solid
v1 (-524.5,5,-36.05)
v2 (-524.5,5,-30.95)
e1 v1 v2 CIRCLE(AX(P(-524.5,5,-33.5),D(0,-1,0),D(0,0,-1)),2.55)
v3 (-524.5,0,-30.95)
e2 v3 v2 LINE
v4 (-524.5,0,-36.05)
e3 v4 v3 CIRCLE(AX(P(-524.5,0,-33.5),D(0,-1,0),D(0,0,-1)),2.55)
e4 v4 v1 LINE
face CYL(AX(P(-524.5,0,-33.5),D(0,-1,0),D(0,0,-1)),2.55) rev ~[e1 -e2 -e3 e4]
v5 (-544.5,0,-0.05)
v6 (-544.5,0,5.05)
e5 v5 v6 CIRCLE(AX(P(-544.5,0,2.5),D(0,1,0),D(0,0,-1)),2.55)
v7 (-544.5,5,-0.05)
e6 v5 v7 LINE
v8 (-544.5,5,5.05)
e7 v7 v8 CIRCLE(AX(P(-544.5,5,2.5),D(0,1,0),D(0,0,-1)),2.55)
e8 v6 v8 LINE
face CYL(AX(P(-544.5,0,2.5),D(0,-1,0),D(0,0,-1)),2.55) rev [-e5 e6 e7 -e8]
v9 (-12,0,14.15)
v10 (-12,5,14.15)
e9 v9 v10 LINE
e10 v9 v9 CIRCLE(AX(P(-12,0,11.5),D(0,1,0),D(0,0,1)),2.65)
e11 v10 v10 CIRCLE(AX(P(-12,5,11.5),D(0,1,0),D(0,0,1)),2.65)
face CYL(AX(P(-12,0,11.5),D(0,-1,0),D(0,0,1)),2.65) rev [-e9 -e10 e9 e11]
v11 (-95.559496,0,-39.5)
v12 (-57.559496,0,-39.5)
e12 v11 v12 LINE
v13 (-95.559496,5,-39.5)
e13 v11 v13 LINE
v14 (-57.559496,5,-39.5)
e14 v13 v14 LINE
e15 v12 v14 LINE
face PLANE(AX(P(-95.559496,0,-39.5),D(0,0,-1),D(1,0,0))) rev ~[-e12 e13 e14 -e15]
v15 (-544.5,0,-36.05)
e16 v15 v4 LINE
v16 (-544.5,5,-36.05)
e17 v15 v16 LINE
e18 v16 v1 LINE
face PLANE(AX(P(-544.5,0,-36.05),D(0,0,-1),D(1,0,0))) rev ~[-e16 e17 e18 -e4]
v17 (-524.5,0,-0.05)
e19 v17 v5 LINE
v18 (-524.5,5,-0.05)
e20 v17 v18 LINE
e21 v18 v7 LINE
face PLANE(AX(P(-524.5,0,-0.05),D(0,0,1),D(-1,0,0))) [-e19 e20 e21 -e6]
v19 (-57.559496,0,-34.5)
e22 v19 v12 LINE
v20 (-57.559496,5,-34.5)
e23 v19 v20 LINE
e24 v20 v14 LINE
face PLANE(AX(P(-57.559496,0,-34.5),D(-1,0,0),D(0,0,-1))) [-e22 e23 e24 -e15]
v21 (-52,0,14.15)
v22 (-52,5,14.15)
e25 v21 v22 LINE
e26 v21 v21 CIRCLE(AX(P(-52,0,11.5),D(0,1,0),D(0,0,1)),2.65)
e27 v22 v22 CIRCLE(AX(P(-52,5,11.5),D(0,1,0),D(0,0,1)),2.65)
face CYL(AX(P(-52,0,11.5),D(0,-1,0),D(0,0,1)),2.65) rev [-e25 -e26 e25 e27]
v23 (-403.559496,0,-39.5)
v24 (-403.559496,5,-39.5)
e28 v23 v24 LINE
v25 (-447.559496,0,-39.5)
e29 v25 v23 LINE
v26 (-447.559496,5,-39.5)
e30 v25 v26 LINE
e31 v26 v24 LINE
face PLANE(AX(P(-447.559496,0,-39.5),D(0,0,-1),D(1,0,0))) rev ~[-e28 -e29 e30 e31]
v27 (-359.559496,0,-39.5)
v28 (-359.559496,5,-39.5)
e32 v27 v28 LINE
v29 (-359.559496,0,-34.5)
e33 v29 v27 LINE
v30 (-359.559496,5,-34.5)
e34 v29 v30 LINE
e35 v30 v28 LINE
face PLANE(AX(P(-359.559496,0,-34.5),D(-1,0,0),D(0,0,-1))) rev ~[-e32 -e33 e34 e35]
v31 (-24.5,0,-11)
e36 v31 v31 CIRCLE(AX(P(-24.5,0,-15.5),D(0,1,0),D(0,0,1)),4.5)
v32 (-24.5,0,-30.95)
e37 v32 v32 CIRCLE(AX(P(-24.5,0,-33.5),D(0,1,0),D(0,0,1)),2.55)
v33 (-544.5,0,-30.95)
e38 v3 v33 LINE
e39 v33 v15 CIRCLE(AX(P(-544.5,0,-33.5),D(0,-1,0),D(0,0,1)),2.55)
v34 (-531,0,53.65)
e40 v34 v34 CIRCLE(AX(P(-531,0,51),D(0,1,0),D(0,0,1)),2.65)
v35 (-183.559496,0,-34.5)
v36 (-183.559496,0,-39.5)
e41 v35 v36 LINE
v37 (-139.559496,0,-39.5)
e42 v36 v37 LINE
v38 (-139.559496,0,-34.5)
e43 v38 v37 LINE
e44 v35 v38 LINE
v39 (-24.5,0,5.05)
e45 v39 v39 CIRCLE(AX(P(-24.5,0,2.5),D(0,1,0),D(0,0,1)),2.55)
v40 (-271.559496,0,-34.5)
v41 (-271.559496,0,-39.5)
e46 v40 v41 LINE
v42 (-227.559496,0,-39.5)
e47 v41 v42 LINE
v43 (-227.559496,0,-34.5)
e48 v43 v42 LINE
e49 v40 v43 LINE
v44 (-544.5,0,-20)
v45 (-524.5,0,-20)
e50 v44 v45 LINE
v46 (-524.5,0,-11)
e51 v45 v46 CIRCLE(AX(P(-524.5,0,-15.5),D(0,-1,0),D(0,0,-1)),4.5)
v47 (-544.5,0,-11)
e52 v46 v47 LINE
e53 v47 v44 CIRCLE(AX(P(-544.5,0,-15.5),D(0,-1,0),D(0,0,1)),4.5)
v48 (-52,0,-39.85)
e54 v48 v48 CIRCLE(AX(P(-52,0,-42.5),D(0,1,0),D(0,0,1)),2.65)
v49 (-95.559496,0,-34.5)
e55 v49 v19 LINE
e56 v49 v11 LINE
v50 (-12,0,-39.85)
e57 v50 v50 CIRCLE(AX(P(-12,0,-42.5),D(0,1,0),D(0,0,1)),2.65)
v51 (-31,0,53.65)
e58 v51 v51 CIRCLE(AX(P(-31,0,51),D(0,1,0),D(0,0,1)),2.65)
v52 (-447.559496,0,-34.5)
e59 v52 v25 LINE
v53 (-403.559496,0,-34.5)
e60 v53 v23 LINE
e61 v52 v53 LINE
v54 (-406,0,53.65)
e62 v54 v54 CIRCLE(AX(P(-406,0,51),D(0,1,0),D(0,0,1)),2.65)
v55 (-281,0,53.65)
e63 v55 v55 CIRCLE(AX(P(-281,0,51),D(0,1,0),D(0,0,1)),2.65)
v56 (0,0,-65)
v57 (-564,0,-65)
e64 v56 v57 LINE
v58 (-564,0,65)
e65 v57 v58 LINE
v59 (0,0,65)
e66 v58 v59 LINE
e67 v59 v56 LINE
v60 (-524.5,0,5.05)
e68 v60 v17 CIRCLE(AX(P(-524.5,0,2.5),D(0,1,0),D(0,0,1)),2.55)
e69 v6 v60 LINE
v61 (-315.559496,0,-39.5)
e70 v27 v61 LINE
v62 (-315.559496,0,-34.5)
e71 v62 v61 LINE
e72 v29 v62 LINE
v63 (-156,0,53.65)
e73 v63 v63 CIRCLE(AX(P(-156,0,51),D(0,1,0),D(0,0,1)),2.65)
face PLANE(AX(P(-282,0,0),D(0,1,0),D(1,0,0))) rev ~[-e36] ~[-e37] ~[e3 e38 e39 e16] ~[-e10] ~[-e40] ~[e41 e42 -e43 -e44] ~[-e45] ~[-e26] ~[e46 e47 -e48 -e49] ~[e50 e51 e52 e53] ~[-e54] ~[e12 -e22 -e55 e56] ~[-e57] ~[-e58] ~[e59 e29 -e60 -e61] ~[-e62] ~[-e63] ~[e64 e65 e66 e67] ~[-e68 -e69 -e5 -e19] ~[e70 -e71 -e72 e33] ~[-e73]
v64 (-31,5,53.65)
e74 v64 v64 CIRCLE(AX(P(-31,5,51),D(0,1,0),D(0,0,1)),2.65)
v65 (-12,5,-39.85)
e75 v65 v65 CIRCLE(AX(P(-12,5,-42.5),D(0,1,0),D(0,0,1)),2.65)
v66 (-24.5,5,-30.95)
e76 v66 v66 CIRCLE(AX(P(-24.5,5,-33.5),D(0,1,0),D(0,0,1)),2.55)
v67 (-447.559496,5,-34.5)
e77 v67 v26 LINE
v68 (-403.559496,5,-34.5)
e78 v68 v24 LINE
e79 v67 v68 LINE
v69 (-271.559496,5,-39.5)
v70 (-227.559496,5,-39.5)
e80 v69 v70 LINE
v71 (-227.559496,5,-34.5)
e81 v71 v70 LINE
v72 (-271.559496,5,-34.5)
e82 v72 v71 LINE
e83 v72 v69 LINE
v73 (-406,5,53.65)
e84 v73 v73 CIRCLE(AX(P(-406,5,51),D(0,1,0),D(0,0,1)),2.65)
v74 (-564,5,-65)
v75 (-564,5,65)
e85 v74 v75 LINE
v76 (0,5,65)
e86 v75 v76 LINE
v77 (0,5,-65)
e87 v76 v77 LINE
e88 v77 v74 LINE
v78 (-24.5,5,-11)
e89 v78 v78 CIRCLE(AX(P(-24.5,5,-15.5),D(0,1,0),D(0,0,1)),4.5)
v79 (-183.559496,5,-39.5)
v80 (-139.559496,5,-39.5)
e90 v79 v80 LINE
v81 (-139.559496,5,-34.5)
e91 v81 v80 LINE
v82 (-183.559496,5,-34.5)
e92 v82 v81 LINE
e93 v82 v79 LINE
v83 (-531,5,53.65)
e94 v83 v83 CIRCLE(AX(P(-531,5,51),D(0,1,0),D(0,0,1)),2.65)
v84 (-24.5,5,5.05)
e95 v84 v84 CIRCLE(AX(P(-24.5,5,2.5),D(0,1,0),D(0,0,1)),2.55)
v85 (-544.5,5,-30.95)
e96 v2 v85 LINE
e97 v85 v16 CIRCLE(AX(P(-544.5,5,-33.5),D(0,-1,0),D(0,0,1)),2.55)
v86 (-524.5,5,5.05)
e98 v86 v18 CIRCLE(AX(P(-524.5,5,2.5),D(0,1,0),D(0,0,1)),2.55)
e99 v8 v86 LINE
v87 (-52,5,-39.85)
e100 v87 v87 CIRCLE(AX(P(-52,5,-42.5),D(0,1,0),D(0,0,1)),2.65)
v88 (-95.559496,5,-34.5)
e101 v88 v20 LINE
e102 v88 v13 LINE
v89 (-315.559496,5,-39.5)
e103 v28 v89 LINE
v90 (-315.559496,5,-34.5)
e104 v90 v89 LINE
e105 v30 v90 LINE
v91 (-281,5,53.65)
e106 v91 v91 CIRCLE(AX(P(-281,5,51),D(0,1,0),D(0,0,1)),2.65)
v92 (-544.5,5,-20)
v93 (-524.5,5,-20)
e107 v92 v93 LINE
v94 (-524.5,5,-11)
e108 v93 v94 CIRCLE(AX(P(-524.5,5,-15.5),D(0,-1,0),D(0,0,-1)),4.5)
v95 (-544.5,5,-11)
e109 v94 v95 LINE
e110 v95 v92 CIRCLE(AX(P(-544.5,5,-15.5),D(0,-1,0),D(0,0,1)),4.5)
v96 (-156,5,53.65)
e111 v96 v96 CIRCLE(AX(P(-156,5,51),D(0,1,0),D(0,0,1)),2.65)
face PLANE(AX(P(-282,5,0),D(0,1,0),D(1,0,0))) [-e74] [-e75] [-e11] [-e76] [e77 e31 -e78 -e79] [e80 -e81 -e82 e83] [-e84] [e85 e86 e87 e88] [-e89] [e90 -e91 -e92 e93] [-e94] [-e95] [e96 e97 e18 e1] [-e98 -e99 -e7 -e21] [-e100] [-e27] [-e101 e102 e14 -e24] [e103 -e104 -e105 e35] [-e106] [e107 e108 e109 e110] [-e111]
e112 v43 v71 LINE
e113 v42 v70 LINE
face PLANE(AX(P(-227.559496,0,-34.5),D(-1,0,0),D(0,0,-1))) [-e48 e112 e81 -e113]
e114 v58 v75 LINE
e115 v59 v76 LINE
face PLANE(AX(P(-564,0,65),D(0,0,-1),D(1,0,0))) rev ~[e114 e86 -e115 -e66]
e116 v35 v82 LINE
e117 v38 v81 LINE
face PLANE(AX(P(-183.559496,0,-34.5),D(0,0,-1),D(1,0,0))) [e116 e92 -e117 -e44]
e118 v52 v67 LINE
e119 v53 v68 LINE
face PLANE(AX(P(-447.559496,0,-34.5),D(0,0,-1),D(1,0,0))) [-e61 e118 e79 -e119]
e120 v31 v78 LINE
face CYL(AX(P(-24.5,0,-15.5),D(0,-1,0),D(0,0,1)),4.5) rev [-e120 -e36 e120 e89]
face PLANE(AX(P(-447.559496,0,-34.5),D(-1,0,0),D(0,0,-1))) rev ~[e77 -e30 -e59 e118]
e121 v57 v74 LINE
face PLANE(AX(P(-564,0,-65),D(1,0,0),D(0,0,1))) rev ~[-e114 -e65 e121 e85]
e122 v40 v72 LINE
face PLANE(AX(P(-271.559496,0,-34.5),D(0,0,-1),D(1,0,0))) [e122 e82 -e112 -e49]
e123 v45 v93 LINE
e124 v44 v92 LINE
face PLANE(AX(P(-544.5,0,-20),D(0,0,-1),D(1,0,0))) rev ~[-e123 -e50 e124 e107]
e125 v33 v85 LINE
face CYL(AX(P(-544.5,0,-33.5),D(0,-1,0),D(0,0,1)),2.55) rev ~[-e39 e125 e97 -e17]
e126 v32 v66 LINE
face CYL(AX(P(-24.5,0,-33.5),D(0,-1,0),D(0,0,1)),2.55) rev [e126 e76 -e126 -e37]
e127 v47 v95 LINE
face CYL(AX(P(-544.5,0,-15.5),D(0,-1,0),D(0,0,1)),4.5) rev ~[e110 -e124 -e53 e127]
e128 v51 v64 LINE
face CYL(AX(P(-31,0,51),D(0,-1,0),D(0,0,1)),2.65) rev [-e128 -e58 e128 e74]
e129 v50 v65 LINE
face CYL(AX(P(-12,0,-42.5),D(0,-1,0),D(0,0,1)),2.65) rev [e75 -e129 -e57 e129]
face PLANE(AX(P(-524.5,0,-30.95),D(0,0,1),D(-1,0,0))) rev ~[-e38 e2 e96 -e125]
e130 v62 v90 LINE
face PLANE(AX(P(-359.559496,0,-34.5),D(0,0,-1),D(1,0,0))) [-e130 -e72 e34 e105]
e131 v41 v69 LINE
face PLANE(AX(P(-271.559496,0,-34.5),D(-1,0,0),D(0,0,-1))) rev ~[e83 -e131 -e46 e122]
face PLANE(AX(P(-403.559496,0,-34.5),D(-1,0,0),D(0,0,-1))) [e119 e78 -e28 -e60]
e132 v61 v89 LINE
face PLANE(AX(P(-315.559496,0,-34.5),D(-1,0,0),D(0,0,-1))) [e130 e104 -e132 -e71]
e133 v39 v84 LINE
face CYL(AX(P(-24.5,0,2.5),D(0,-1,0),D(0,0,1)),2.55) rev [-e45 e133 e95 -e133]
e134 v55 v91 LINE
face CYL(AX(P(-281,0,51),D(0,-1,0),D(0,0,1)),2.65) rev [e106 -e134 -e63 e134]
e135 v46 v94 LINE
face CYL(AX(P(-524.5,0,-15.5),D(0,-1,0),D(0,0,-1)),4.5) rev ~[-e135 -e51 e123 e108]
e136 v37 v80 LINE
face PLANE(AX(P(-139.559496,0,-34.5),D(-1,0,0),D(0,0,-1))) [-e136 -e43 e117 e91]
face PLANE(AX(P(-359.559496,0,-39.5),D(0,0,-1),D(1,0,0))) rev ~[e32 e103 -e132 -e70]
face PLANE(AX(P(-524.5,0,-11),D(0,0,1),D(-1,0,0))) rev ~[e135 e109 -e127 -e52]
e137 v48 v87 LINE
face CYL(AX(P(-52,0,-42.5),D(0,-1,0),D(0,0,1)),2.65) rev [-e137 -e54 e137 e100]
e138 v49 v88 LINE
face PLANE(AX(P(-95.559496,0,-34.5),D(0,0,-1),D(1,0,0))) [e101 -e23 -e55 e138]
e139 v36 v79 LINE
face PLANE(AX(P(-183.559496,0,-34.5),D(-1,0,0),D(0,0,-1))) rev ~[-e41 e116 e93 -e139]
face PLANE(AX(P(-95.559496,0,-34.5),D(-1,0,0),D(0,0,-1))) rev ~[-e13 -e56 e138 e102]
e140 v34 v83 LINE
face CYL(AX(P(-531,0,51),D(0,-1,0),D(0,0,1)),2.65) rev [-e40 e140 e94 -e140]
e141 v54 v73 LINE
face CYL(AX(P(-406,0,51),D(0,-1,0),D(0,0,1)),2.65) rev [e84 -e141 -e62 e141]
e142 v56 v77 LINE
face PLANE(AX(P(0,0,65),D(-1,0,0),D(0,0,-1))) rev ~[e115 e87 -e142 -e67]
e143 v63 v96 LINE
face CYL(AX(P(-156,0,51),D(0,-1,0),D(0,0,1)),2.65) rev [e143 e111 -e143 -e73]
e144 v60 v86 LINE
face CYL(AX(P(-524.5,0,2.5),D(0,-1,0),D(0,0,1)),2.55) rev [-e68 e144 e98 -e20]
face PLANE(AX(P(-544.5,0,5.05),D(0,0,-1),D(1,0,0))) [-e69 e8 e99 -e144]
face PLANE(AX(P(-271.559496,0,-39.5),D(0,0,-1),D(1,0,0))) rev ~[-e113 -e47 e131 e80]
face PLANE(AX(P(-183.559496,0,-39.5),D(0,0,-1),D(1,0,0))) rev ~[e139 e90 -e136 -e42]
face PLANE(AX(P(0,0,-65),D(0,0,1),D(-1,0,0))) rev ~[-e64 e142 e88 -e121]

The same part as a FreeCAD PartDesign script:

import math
import FreeCAD as App
import Part
import Sketcher
from FreeCAD import Vector
Q = App.Units.Quantity

doc = App.newDocument("Part")
body = doc.addObject("PartDesign::Body", "Body")

# Sketch on XZ plane
sketch1 = doc.addObject("Sketcher::SketchObject", "Sketch")
body.addObject(sketch1)
sketch1.AttachmentSupport = (doc.XZ_Plane, [""])
sketch1.MapMode = "FlatFace"
sketch1.addGeometry([
    Part.LineSegment(Vector(0, -65, 0), Vector(-564, -65, 0)),  # 0
    Part.LineSegment(Vector(-564, -65, 0), Vector(-564, 65, 0)),  # 1
    Part.LineSegment(Vector(-564, 65, 0), Vector(0, 65, 0)),  # 2
    Part.LineSegment(Vector(0, 65, 0), Vector(0, -65, 0)),  # 3
    Part.Circle(Vector(-531, 51, 0), Vector(0, 0, 1), 2.6),  # 4
    Part.Circle(Vector(-406, 51, 0), Vector(0, 0, 1), 2.6),  # 5
    Part.Circle(Vector(-281, 51, 0), Vector(0, 0, 1), 2.6),  # 6
    Part.Circle(Vector(-156, 51, 0), Vector(0, 0, 1), 2.6),  # 7
    Part.Circle(Vector(-31, 51, 0), Vector(0, 0, 1), 2.6),  # 8
    Part.Circle(Vector(-52, 11.5, 0), Vector(0, 0, 1), 2.6),  # 9
    Part.Circle(Vector(-12, 11.5, 0), Vector(0, 0, 1), 2.6),  # 10
    Part.LineSegment(Vector(-544.5, -0.1, 0), Vector(-524.5, -0.1, 0)),  # 11
    Part.ArcOfCircle(Part.Circle(Vector(-524.5, 2.5, 0), Vector(0, 0, 1), 2.5), math.radians(-90), math.radians(90)),  # 12
    Part.LineSegment(Vector(-524.5, 5, 0), Vector(-544.5, 5, 0)),  # 13
    Part.ArcOfCircle(Part.Circle(Vector(-544.5, 2.5, 0), Vector(0, 0, 1), 2.5), math.radians(90), math.radians(270)),  # 14
    Part.ArcOfCircle(Part.Circle(Vector(-544.5, -15.5, 0), Vector(0, 0, 1), 4.5), math.radians(90), math.radians(270)),  # 15
    Part.LineSegment(Vector(-544.5, -20, 0), Vector(-524.5, -20, 0)),  # 16
    Part.ArcOfCircle(Part.Circle(Vector(-524.5, -15.5, 0), Vector(0, 0, 1), 4.5), math.radians(-90), math.radians(90)),  # 17
    Part.LineSegment(Vector(-524.5, -11, 0), Vector(-544.5, -11, 0)),  # 18
    Part.ArcOfCircle(Part.Circle(Vector(-544.5, -33.5, 0), Vector(0, 0, 1), 2.5), math.radians(90), math.radians(270)),  # 19
    Part.LineSegment(Vector(-544.5, -36, 0), Vector(-524.5, -36, 0)),  # 20
    Part.ArcOfCircle(Part.Circle(Vector(-524.5, -33.5, 0), Vector(0, 0, 1), 2.5), math.radians(-90), math.radians(90)),  # 21
    Part.LineSegment(Vector(-524.5, -30.9, 0), Vector(-544.5, -30.9, 0)),  # 22
    Part.LineSegment(Vector(-403.6, -34.5, 0), Vector(-447.6, -34.5, 0)),  # 23
    Part.LineSegment(Vector(-447.6, -34.5, 0), Vector(-447.6, -39.5, 0)),  # 24
    Part.LineSegment(Vector(-447.6, -39.5, 0), Vector(-403.6, -39.5, 0)),  # 25
    Part.LineSegment(Vector(-403.6, -39.5, 0), Vector(-403.6, -34.5, 0)),  # 26
    Part.LineSegment(Vector(-315.6, -34.5, 0), Vector(-359.6, -34.5, 0)),  # 27
    Part.LineSegment(Vector(-359.6, -34.5, 0), Vector(-359.6, -39.5, 0)),  # 28
    Part.LineSegment(Vector(-359.6, -39.5, 0), Vector(-315.6, -39.5, 0)),  # 29
    Part.LineSegment(Vector(-315.6, -39.5, 0), Vector(-315.6, -34.5, 0)),  # 30
    Part.Circle(Vector(-24.5, 2.5, 0), Vector(0, 0, 1), 2.5),  # 31
    Part.Circle(Vector(-24.5, -15.5, 0), Vector(0, 0, 1), 4.5),  # 32
    Part.LineSegment(Vector(-227.6, -34.5, 0), Vector(-271.6, -34.5, 0)),  # 33
    Part.LineSegment(Vector(-271.6, -34.5, 0), Vector(-271.6, -39.5, 0)),  # 34
    Part.LineSegment(Vector(-271.6, -39.5, 0), Vector(-227.6, -39.5, 0)),  # 35
    Part.LineSegment(Vector(-227.6, -39.5, 0), Vector(-227.6, -34.5, 0)),  # 36
    Part.LineSegment(Vector(-139.6, -34.5, 0), Vector(-183.6, -34.5, 0)),  # 37
    Part.LineSegment(Vector(-183.6, -34.5, 0), Vector(-183.6, -39.5, 0)),  # 38
    Part.LineSegment(Vector(-183.6, -39.5, 0), Vector(-139.6, -39.5, 0)),  # 39
    Part.LineSegment(Vector(-139.6, -39.5, 0), Vector(-139.6, -34.5, 0)),  # 40
    Part.LineSegment(Vector(-57.6, -34.5, 0), Vector(-95.6, -34.5, 0)),  # 41
    Part.LineSegment(Vector(-95.6, -34.5, 0), Vector(-95.6, -39.5, 0)),  # 42
    Part.LineSegment(Vector(-95.6, -39.5, 0), Vector(-57.6, -39.5, 0)),  # 43
    Part.LineSegment(Vector(-57.6, -39.5, 0), Vector(-57.6, -34.5, 0)),  # 44
    Part.Circle(Vector(-24.5, -33.5, 0), Vector(0, 0, 1), 2.5),  # 45
    Part.Circle(Vector(-52, -42.5, 0), Vector(0, 0, 1), 2.6),  # 46
    Part.Circle(Vector(-12, -42.5, 0), Vector(0, 0, 1), 2.6),  # 47
], False)
sketch1.addConstraint([
    Sketcher.Constraint("Coincident", 0, 2, 1, 1),
    Sketcher.Constraint("Coincident", 1, 2, 2, 1),
    Sketcher.Constraint("Coincident", 2, 2, 3, 1),
    Sketcher.Constraint("Coincident", 3, 2, 0, 1),
    Sketcher.Constraint("Tangent", 11, 2, 12, 1),
    Sketcher.Constraint("Tangent", 12, 2, 13, 1),
    Sketcher.Constraint("Tangent", 13, 2, 14, 1),
    Sketcher.Constraint("Tangent", 14, 2, 11, 1),
    Sketcher.Constraint("Tangent", 15, 2, 16, 1),
    Sketcher.Constraint("Tangent", 16, 2, 17, 1),
    Sketcher.Constraint("Tangent", 17, 2, 18, 1),
    Sketcher.Constraint("Tangent", 18, 2, 15, 1),
    Sketcher.Constraint("Tangent", 19, 2, 20, 1),
    Sketcher.Constraint("Tangent", 20, 2, 21, 1),
    Sketcher.Constraint("Tangent", 21, 2, 22, 1),
    Sketcher.Constraint("Tangent", 22, 2, 19, 1),
    Sketcher.Constraint("Coincident", 23, 2, 24, 1),
    Sketcher.Constraint("Coincident", 24, 2, 25, 1),
    Sketcher.Constraint("Coincident", 25, 2, 26, 1),
    Sketcher.Constraint("Coincident", 26, 2, 23, 1),
    Sketcher.Constraint("Coincident", 27, 2, 28, 1),
    Sketcher.Constraint("Coincident", 28, 2, 29, 1),
    Sketcher.Constraint("Coincident", 29, 2, 30, 1),
    Sketcher.Constraint("Coincident", 30, 2, 27, 1),
    Sketcher.Constraint("Coincident", 33, 2, 34, 1),
    Sketcher.Constraint("Coincident", 34, 2, 35, 1),
    Sketcher.Constraint("Coincident", 35, 2, 36, 1),
    Sketcher.Constraint("Coincident", 36, 2, 33, 1),
    Sketcher.Constraint("Coincident", 37, 2, 38, 1),
    Sketcher.Constraint("Coincident", 38, 2, 39, 1),
    Sketcher.Constraint("Coincident", 39, 2, 40, 1),
    Sketcher.Constraint("Coincident", 40, 2, 37, 1),
    Sketcher.Constraint("Coincident", 41, 2, 42, 1),
    Sketcher.Constraint("Coincident", 42, 2, 43, 1),
    Sketcher.Constraint("Coincident", 43, 2, 44, 1),
    Sketcher.Constraint("Coincident", 44, 2, 41, 1),
    Sketcher.Constraint("Horizontal", 0),
    Sketcher.Constraint("Vertical", 1),
    Sketcher.Constraint("Horizontal", 2),
    Sketcher.Constraint("Vertical", 3),
    Sketcher.Constraint("Horizontal", 11),
    Sketcher.Constraint("Horizontal", 13),
    Sketcher.Constraint("Horizontal", 16),
    Sketcher.Constraint("Horizontal", 18),
    Sketcher.Constraint("Horizontal", 20),
    Sketcher.Constraint("Horizontal", 22),
    Sketcher.Constraint("Horizontal", 23),
    Sketcher.Constraint("Vertical", 24),
    Sketcher.Constraint("Horizontal", 25),
    Sketcher.Constraint("Vertical", 26),
    Sketcher.Constraint("Horizontal", 27),
    Sketcher.Constraint("Vertical", 28),
    Sketcher.Constraint("Horizontal", 29),
    Sketcher.Constraint("Vertical", 30),
    Sketcher.Constraint("Horizontal", 33),
    Sketcher.Constraint("Vertical", 34),
    Sketcher.Constraint("Horizontal", 35),
    Sketcher.Constraint("Vertical", 36),
    Sketcher.Constraint("Horizontal", 37),
    Sketcher.Constraint("Vertical", 38),
    Sketcher.Constraint("Horizontal", 39),
    Sketcher.Constraint("Vertical", 40),
    Sketcher.Constraint("Horizontal", 41),
    Sketcher.Constraint("Vertical", 42),
    Sketcher.Constraint("Horizontal", 43),
    Sketcher.Constraint("Vertical", 44),
    Sketcher.Constraint("Equal", 4, 5),
    Sketcher.Constraint("Equal", 5, 6),
    Sketcher.Constraint("Equal", 6, 7),
    Sketcher.Constraint("Equal", 7, 8),
    Sketcher.Constraint("Equal", 8, 9),
    Sketcher.Constraint("Equal", 9, 10),
    Sketcher.Constraint("Equal", 14, 19),
    Sketcher.Constraint("Equal", 21, 31),
    Sketcher.Constraint("Equal", 17, 32),
    Sketcher.Constraint("Equal", 31, 45),
    Sketcher.Constraint("Equal", 10, 46),
    Sketcher.Constraint("Equal", 46, 47),
    Sketcher.Constraint("Symmetric", 2, 2, 3, 2, -1, 1),
    Sketcher.Constraint("Horizontal", 4, 3, 5, 3),
    Sketcher.Constraint("Horizontal", 5, 3, 6, 3),
    Sketcher.Constraint("Horizontal", 6, 3, 7, 3),
    Sketcher.Constraint("Horizontal", 7, 3, 8, 3),
    Sketcher.Constraint("Horizontal", 9, 3, 10, 3),
    Sketcher.Constraint("Horizontal", 14, 3, 31, 3),
    Sketcher.Constraint("Horizontal", 17, 3, 32, 3),
    Sketcher.Constraint("Horizontal", 21, 3, 45, 3),
    Sketcher.Constraint("Horizontal", 46, 3, 47, 3),
    Sketcher.Constraint("Horizontal", 26, 2, 27, 2),
    Sketcher.Constraint("Horizontal", 25, 2, 28, 2),
    Sketcher.Constraint("Horizontal", 30, 2, 33, 2),
    Sketcher.Constraint("Horizontal", 29, 2, 34, 2),
    Sketcher.Constraint("Horizontal", 36, 2, 37, 2),
    Sketcher.Constraint("Horizontal", 35, 2, 38, 2),
    Sketcher.Constraint("Horizontal", 40, 2, 41, 2),
    Sketcher.Constraint("Horizontal", 39, 2, 42, 2),
    Sketcher.Constraint("Vertical", 14, 3, 15, 3),
    Sketcher.Constraint("Vertical", 12, 3, 17, 3),
    Sketcher.Constraint("Vertical", 15, 3, 19, 3),
    Sketcher.Constraint("Vertical", 17, 3, 21, 3),
    Sketcher.Constraint("Vertical", 31, 3, 32, 3),
    Sketcher.Constraint("Vertical", 32, 3, 45, 3),
    Sketcher.Constraint("Vertical", 9, 3, 46, 3),
    Sketcher.Constraint("Vertical", 10, 3, 47, 3),
    Sketcher.Constraint("Equal", 25, 27),
    Sketcher.Constraint("Equal", 29, 33),
    Sketcher.Constraint("Equal", 35, 37),
    Sketcher.Constraint("Diameter", 32, Q("9 mm")),
    Sketcher.Constraint("Diameter", 4, Q("5.3 mm")),
    Sketcher.Constraint("Diameter", 31, Q("5.1 mm")),
    Sketcher.Constraint("DistanceX", 0, 2, 0, 1, Q("564 mm")),
    Sketcher.Constraint("DistanceX", 11, 1, 11, 2, Q("20 mm")),
    Sketcher.Constraint("DistanceX", 23, 2, 23, 1, Q("44 mm")),
    Sketcher.Constraint("DistanceX", 41, 2, 41, 1, Q("38 mm")),
    Sketcher.Constraint("DistanceY", 1, 1, 1, 2, Q("130 mm")),
    Sketcher.Constraint("DistanceY", 24, 2, 24, 1, Q("5 mm")),
    Sketcher.Constraint("DistanceX", 4, 3, -1, 1, Q("531 mm")),
    Sketcher.Constraint("DistanceY", -1, 1, 4, 3, Q("51 mm")),
    Sketcher.Constraint("DistanceX", 5, 3, -1, 1, Q("406 mm")),
    Sketcher.Constraint("DistanceX", 6, 3, -1, 1, Q("281 mm")),
    Sketcher.Constraint("DistanceX", 7, 3, -1, 1, Q("156 mm")),
    Sketcher.Constraint("DistanceX", 8, 3, -1, 1, Q("31 mm")),
    Sketcher.Constraint("DistanceX", 9, 3, -1, 1, Q("52 mm")),
    Sketcher.Constraint("DistanceX", 10, 3, -1, 1, Q("12 mm")),
    Sketcher.Constraint("DistanceY", 15, 2, -1, 1, Q("20 mm")),
    Sketcher.Constraint("DistanceY", 12, 3, 9, 3, Q("9 mm")),
    Sketcher.Constraint("DistanceY", 15, 3, 14, 3, Q("18 mm")),
    Sketcher.Constraint("DistanceY", 19, 3, 15, 3, Q("18 mm")),
    Sketcher.Constraint("DistanceY", 46, 3, 45, 3, Q("9 mm")),
    Sketcher.Constraint("DistanceY", 23, 2, 21, 3, Q("1 mm")),
    Sketcher.Constraint("DistanceX", 26, 2, 27, 2, Q("44 mm")),
    Sketcher.Constraint("DistanceX", 30, 2, 33, 2, Q("44 mm")),
    Sketcher.Constraint("DistanceX", 36, 2, 37, 2, Q("44 mm")),
    Sketcher.Constraint("DistanceX", 40, 2, 41, 2, Q("44 mm")),
    Sketcher.Constraint("DistanceX", 12, 3, -1, 1, Q("524.5 mm")),
    Sketcher.Constraint("DistanceX", 31, 3, -1, 1, Q("24.5 mm")),
    Sketcher.Constraint("DistanceX", 23, 2, -1, 1, Q("447.559496 mm")),
])
pad1 = doc.addObject("PartDesign::Pad", "Pad")
body.addObject(pad1)
pad1.Profile = sketch1
pad1.Length = 5
pad1.Reversed = True

doc.recompute()
